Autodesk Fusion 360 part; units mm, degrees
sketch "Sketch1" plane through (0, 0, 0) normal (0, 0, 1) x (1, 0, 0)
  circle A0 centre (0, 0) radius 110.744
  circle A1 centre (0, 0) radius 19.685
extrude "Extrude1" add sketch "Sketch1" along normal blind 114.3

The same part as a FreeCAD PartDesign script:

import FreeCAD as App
import Part
import Sketcher
from FreeCAD import Vector
Q = App.Units.Quantity

doc = App.newDocument("Part")
body = doc.addObject("PartDesign::Body", "Body")

# Sketch on XY plane
sketch1 = body.newObject("Sketcher::SketchObject", "Sketch")
sketch1.AttachmentSupport = (doc.getObject("XY_Plane"), [""])
sketch1.MapMode = "FlatFace"
sketch1.addGeometry(Part.Circle(Vector(0, 0, 0), Vector(0, 0, 1), 110.744), False)
sketch1.addGeometry(Part.Circle(Vector(0, 0, 0), Vector(0, 0, 1), 19.685), False)
sketch1.addConstraint(Sketcher.Constraint("Coincident", 0, 3, -1, 1))
sketch1.addConstraint(Sketcher.Constraint("Coincident", 1, 3, -1, 1))
sketch1.addConstraint(Sketcher.Constraint("Diameter", 0, Q("8.72 in")))
sketch1.addConstraint(Sketcher.Constraint("Diameter", 1, Q("1.55 in")))
pad1 = body.newObject("PartDesign::Pad", "Pad")
pad1.Profile = sketch1
pad1.Length = Q("4.5 in")

doc.recompute()
